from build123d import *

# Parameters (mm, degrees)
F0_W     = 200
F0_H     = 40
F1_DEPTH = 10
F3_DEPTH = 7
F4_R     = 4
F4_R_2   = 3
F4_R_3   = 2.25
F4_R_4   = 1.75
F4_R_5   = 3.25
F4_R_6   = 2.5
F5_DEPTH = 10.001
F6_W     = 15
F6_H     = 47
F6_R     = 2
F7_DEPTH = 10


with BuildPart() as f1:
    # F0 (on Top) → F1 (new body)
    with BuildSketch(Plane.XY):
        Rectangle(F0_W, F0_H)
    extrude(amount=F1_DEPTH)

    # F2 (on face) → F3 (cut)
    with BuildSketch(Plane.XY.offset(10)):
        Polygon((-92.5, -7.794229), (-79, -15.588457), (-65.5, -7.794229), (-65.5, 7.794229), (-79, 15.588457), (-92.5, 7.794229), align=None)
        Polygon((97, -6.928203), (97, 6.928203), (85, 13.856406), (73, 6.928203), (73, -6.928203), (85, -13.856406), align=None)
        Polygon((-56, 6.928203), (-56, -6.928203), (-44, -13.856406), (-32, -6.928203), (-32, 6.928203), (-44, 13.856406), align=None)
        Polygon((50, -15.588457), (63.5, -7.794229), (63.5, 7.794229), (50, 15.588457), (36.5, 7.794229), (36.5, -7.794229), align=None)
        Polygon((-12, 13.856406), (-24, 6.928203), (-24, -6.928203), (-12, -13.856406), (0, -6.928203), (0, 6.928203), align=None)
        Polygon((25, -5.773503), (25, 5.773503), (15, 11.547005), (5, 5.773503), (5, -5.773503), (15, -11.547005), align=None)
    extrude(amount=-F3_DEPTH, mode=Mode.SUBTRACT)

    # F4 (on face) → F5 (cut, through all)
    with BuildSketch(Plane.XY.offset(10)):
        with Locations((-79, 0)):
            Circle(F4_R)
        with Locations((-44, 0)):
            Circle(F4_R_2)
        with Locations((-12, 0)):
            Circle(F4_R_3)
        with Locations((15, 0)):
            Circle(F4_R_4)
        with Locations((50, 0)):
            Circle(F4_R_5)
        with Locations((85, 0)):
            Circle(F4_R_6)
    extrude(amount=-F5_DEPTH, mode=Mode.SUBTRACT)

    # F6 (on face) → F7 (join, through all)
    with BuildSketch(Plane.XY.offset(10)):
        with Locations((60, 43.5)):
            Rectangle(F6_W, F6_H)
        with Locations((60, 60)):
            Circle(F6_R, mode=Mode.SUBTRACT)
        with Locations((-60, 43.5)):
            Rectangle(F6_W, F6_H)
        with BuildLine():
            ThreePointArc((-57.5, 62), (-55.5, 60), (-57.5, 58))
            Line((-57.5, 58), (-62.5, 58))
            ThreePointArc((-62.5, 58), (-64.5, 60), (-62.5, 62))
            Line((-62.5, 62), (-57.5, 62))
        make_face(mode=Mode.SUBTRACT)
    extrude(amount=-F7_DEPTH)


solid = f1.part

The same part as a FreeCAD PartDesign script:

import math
import FreeCAD as App
import Part
import Sketcher
from FreeCAD import Vector
Q = App.Units.Quantity


def add_polygon(sketch, points):
    """Adds a closed chain of lines whose ends are joined by coincident constraints."""
    first, n = sketch.GeometryCount, len(points)
    for a, b in zip(points, points[1:] + points[:1]):
        sketch.addGeometry(Part.LineSegment(App.Vector(*a, 0), App.Vector(*b, 0)), False)
    for i in range(n):
        sketch.addConstraint(Sketcher.Constraint("Coincident", first + i, 2, first + (i + 1) % n, 1))

doc = App.newDocument("Part")
body = doc.addObject("PartDesign::Body", "Body")

sketch1 = doc.addObject("Sketcher::SketchObject", "Sketch")
body.addObject(sketch1)
sketch1.AttachmentSupport = (doc.XY_Plane, [""])
sketch1.MapMode = "FlatFace"
add_polygon(sketch1, [(-100, 20), (-100, -20), (100, -20), (100, 20)])
sketch1.addConstraint(Sketcher.Constraint("Vertical", 0))
sketch1.addConstraint(Sketcher.Constraint("Horizontal", 1))
sketch1.addConstraint(Sketcher.Constraint("Vertical", 2))
sketch1.addConstraint(Sketcher.Constraint("Horizontal", 3))
sketch1.addConstraint(Sketcher.Constraint("Symmetric", 0, 2, 2, 2, -1, 1))
sketch1.addConstraint(Sketcher.Constraint("DistanceX", 1, 1, 1, 2, 200.0))
sketch1.addConstraint(Sketcher.Constraint("DistanceY", 0, 2, 0, 1, 40.0))
pad1 = doc.addObject("PartDesign::Pad", "Pad")
body.addObject(pad1)
pad1.Profile = sketch1
pad1.Length = 10

sketch2 = doc.addObject("Sketcher::SketchObject", "Sketch001")
body.addObject(sketch2)
sketch2.AttachmentSupport = (doc.XY_Plane, [""])
sketch2.MapMode = "FlatFace"
sketch2.AttachmentOffset = App.Placement(Vector(0, 0, 10), App.Rotation())
add_polygon(sketch2, [(-92.5, -7.794229), (-79, -15.588457), (-65.5, -7.794229), (-65.5, 7.794229), (-79, 15.588457), (-92.5, 7.794229)])
add_polygon(sketch2, [(97, -6.928203), (97, 6.928203), (85, 13.856406), (73, 6.928203), (73, -6.928203), (85, -13.856406)])
add_polygon(sketch2, [(-56, 6.928203), (-56, -6.928203), (-44, -13.856406), (-32, -6.928203), (-32, 6.928203), (-44, 13.856406)])
add_polygon(sketch2, [(50, -15.588457), (63.5, -7.794229), (63.5, 7.794229), (50, 15.588457), (36.5, 7.794229), (36.5, -7.794229)])
add_polygon(sketch2, [(-12, 13.856406), (-24, 6.928203), (-24, -6.928203), (-12, -13.856406), (0, -6.928203), (0, 6.928203)])
add_polygon(sketch2, [(25, -5.773503), (25, 5.773503), (15, 11.547005), (5, 5.773503), (5, -5.773503), (15, -11.547005)])
sketch2.addConstraint(Sketcher.Constraint("Vertical", 2))
sketch2.addConstraint(Sketcher.Constraint("Vertical", 5))
sketch2.addConstraint(Sketcher.Constraint("Vertical", 6))
sketch2.addConstraint(Sketcher.Constraint("Vertical", 9))
sketch2.addConstraint(Sketcher.Constraint("Vertical", 12))
sketch2.addConstraint(Sketcher.Constraint("Vertical", 15))
sketch2.addConstraint(Sketcher.Constraint("Vertical", 19))
sketch2.addConstraint(Sketcher.Constraint("Vertical", 22))
sketch2.addConstraint(Sketcher.Constraint("Vertical", 25))
sketch2.addConstraint(Sketcher.Constraint("Vertical", 28))
sketch2.addConstraint(Sketcher.Constraint("Vertical", 30))
sketch2.addConstraint(Sketcher.Constraint("Vertical", 33))
sketch2.addConstraint(Sketcher.Constraint("Symmetric", 27, 2, 28, 2, -1, 1))
sketch2.addConstraint(Sketcher.Constraint("Symmetric", 0, 2, 3, 2, -1))
sketch2.addConstraint(Sketcher.Constraint("Symmetric", 7, 2, 10, 2, -1))
sketch2.addConstraint(Sketcher.Constraint("Symmetric", 13, 2, 16, 2, -1))
sketch2.addConstraint(Sketcher.Constraint("Symmetric", 20, 2, 23, 2, -1))
sketch2.addConstraint(Sketcher.Constraint("Symmetric", 26, 2, 29, 2, -1))
sketch2.addConstraint(Sketcher.Constraint("Symmetric", 31, 2, 34, 2, -1))
sketch2.addConstraint(Sketcher.Constraint("Parallel", 0, 3))
sketch2.addConstraint(Sketcher.Constraint("Parallel", 1, 4))
sketch2.addConstraint(Sketcher.Constraint("Parallel", 3, 7))
sketch2.addConstraint(Sketcher.Constraint("Parallel", 4, 8))
sketch2.addConstraint(Sketcher.Constraint("Parallel", 7, 10))
sketch2.addConstraint(Sketcher.Constraint("Parallel", 8, 11))
sketch2.addConstraint(Sketcher.Constraint("Parallel", 10, 13))
sketch2.addConstraint(Sketcher.Constraint("Parallel", 11, 14))
sketch2.addConstraint(Sketcher.Constraint("Parallel", 13, 16))
sketch2.addConstraint(Sketcher.Constraint("Parallel", 14, 17))
sketch2.addConstraint(Sketcher.Constraint("Parallel", 17, 18))
sketch2.addConstraint(Sketcher.Constraint("Parallel", 16, 20))
sketch2.addConstraint(Sketcher.Constraint("Parallel", 18, 21))
sketch2.addConstraint(Sketcher.Constraint("Parallel", 20, 23))
sketch2.addConstraint(Sketcher.Constraint("Parallel", 21, 24))
sketch2.addConstraint(Sketcher.Constraint("Parallel", 23, 26))
sketch2.addConstraint(Sketcher.Constraint("Parallel", 24, 27))
sketch2.addConstraint(Sketcher.Constraint("Parallel", 26, 29))
sketch2.addConstraint(Sketcher.Constraint("Parallel", 29, 31))
sketch2.addConstraint(Sketcher.Constraint("Parallel", 27, 32))
sketch2.addConstraint(Sketcher.Constraint("Parallel", 31, 34))
sketch2.addConstraint(Sketcher.Constraint("Parallel", 32, 35))
sketch2.addConstraint(Sketcher.Constraint("Horizontal", 2, 2, 4, 2))
sketch2.addConstraint(Sketcher.Constraint("Horizontal", 6, 2, 8, 2))
sketch2.addConstraint(Sketcher.Constraint("Horizontal", 11, 2, 12, 2))
sketch2.addConstraint(Sketcher.Constraint("Horizontal", 10, 2, 13, 2))
sketch2.addConstraint(Sketcher.Constraint("Horizontal", 12, 2, 14, 2))
sketch2.addConstraint(Sketcher.Constraint("Horizontal", 5, 2, 18, 2))
sketch2.addConstraint(Sketcher.Constraint("Horizontal", 3, 2, 20, 2))
sketch2.addConstraint(Sketcher.Constraint("Horizontal", 19, 2, 21, 2))
sketch2.addConstraint(Sketcher.Constraint("Horizontal", 17, 2, 24, 2))
sketch2.addConstraint(Sketcher.Constraint("Horizontal", 13, 2, 26, 2))
sketch2.addConstraint(Sketcher.Constraint("Horizontal", 25, 2, 27, 2))
sketch2.addConstraint(Sketcher.Constraint("Horizontal", 30, 2, 32, 2))
sketch2.addConstraint(Sketcher.Constraint("Angle", 0, Q("-29.999998 deg")))
sketch2.addConstraint(Sketcher.Constraint("DistanceX", 0, 2, -1, 1, 79.0))
sketch2.addConstraint(Sketcher.Constraint("DistanceX", -1, 1, 6, 2, 97.0))
sketch2.addConstraint(Sketcher.Constraint("DistanceX", -1, 1, 7, 2, 85.0))
sketch2.addConstraint(Sketcher.Constraint("DistanceX", 12, 2, -1, 1, 56.0))
sketch2.addConstraint(Sketcher.Constraint("DistanceX", -1, 1, 20, 2, 50.0))
sketch2.addConstraint(Sketcher.Constraint("DistanceX", -1, 1, 30, 2, 25.0))
sketch2.addConstraint(Sketcher.Constraint("DistanceX", -1, 1, 31, 2, 15.0))
sketch2.addConstraint(Sketcher.Constraint("DistanceX", 4, 2, 2, 2, 27.0))
sketch2.addConstraint(Sketcher.Constraint("DistanceY", 30, 2, 28, 2, 1.1547))
sketch2.addConstraint(Sketcher.Constraint("DistanceY", 2, 1, 2, 2, 15.588458))
sketch2.addConstraint(Sketcher.Constraint("DistanceY", 6, 1, 6, 2, 13.856406))
pocket1 = doc.addObject("PartDesign::Pocket", "Pocket")
body.addObject(pocket1)
pocket1.Profile = sketch2
pocket1.Length = 7

sketch3 = doc.addObject("Sketcher::SketchObject", "Sketch002")
body.addObject(sketch3)
sketch3.AttachmentSupport = (doc.XY_Plane, [""])
sketch3.MapMode = "FlatFace"
sketch3.AttachmentOffset = App.Placement(Vector(0, 0, 10), App.Rotation())
sketch3.addGeometry(Part.Circle(Vector(-79, 0, 0), Vector(0, 0, 1), 4), False)
sketch3.addGeometry(Part.Circle(Vector(-44, 0, 0), Vector(0, 0, 1), 3), False)
sketch3.addGeometry(Part.Circle(Vector(-12, 0, 0), Vector(0, 0, 1), 2.25), False)
sketch3.addGeometry(Part.Circle(Vector(15, 0, 0), Vector(0, 0, 1), 1.75), False)
sketch3.addGeometry(Part.Circle(Vector(50, 0, 0), Vector(0, 0, 1), 3.25), False)
sketch3.addGeometry(Part.Circle(Vector(85, 0, 0), Vector(0, 0, 1), 2.5), False)
sketch3.addConstraint(Sketcher.Constraint("PointOnObject", 0, 3, -1))
sketch3.addConstraint(Sketcher.Constraint("PointOnObject", 1, 3, -1))
sketch3.addConstraint(Sketcher.Constraint("PointOnObject", 2, 3, -1))
sketch3.addConstraint(Sketcher.Constraint("PointOnObject", 3, 3, -1))
sketch3.addConstraint(Sketcher.Constraint("PointOnObject", 4, 3, -1))
sketch3.addConstraint(Sketcher.Constraint("PointOnObject", 5, 3, -1))
sketch3.addConstraint(Sketcher.Constraint("Diameter", 0, 8.0))
sketch3.addConstraint(Sketcher.Constraint("Diameter", 1, 6.0))
sketch3.addConstraint(Sketcher.Constraint("Diameter", 5, 5.0))
sketch3.addConstraint(Sketcher.Constraint("Diameter", 2, 4.5))
sketch3.addConstraint(Sketcher.Constraint("Diameter", 3, 3.5))
sketch3.addConstraint(Sketcher.Constraint("Diameter", 4, 6.5))
sketch3.addConstraint(Sketcher.Constraint("DistanceX", 0, 3, -1, 1, 79.0))
sketch3.addConstraint(Sketcher.Constraint("DistanceX", 1, 3, -1, 1, 44.0))
sketch3.addConstraint(Sketcher.Constraint("DistanceX", 2, 3, -1, 1, 12.0))
sketch3.addConstraint(Sketcher.Constraint("DistanceX", -1, 1, 3, 3, 15.0))
sketch3.addConstraint(Sketcher.Constraint("DistanceX", -1, 1, 4, 3, 50.0))
sketch3.addConstraint(Sketcher.Constraint("DistanceX", -1, 1, 5, 3, 85.0))
pocket2 = doc.addObject("PartDesign::Pocket", "Pocket001")
body.addObject(pocket2)
pocket2.Profile = sketch3
pocket2.Type = "ThroughAll"

sketch4 = doc.addObject("Sketcher::SketchObject", "Sketch003")
body.addObject(sketch4)
sketch4.AttachmentSupport = (doc.XY_Plane, [""])
sketch4.MapMode = "FlatFace"
sketch4.AttachmentOffset = App.Placement(Vector(0, 0, 10), App.Rotation())
add_polygon(sketch4, [(52.5, 67), (52.5, 20), (67.5, 20), (67.5, 67)])
sketch4.addGeometry(Part.Circle(Vector(60, 60, 0), Vector(0, 0, 1), 2), False)
add_polygon(sketch4, [(-67.5, 67), (-67.5, 20), (-52.5, 20), (-52.5, 67)])
sketch4.addGeometry(Part.LineSegment(Vector(-62.5, 62, 0), Vector(-57.5, 62, 0)), False)
sketch4.addGeometry(Part.ArcOfCircle(Part.Circle(Vector(-57.5, 60, 0), Vector(0, 0, 1), 2), math.radians(-90), math.radians(90)), False)
sketch4.addGeometry(Part.LineSegment(Vector(-57.5, 58, 0), Vector(-62.5, 58, 0)), False)
sketch4.addGeometry(Part.ArcOfCircle(Part.Circle(Vector(-62.5, 60, 0), Vector(0, 0, 1), 2), math.radians(90), math.radians(270)), False)
sketch4.addConstraint(Sketcher.Constraint("Tangent", 9, 2, 10, 2))
sketch4.addConstraint(Sketcher.Constraint("Tangent", 10, 1, 11, 1))
sketch4.addConstraint(Sketcher.Constraint("Tangent", 11, 2, 12, 2))
sketch4.addConstraint(Sketcher.Constraint("Tangent", 12, 1, 9, 1))
sketch4.addConstraint(Sketcher.Constraint("Vertical", 0))
sketch4.addConstraint(Sketcher.Constraint("Horizontal", 1))
sketch4.addConstraint(Sketcher.Constraint("Vertical", 2))
sketch4.addConstraint(Sketcher.Constraint("Horizontal", 3))
sketch4.addConstraint(Sketcher.Constraint("Vertical", 5))
sketch4.addConstraint(Sketcher.Constraint("Horizontal", 6))
sketch4.addConstraint(Sketcher.Constraint("Vertical", 7))
sketch4.addConstraint(Sketcher.Constraint("Horizontal", 8))
sketch4.addConstraint(Sketcher.Constraint("Horizontal", 9))
sketch4.addConstraint(Sketcher.Constraint("Horizontal", 11))
sketch4.addConstraint(Sketcher.Constraint("Equal", 4, 10))
sketch4.addConstraint(Sketcher.Constraint("Symmetric", 1, 2, 5, 2, -2))
sketch4.addConstraint(Sketcher.Constraint("Symmetric", 3, 2, 7, 2, -2))
sketch4.addConstraint(Sketcher.Constraint("Horizontal", 4, 3, 10, 3))
sketch4.addConstraint(Sketcher.Constraint("Diameter", 4, 4.0))
sketch4.addConstraint(Sketcher.Constraint("DistanceX", 1, 1, 1, 2, 15.0))
sketch4.addConstraint(Sketcher.Constraint("DistanceX", 9, 1, 9, 2, 5.0))
sketch4.addConstraint(Sketcher.Constraint("DistanceY", 0, 2, 0, 1, 47.0))
sketch4.addConstraint(Sketcher.Constraint("DistanceX", -1, 1, 4, 3, 60.0))
sketch4.addConstraint(Sketcher.Constraint("DistanceY", -1, 1, 4, 3, 60.0))
sketch4.addConstraint(Sketcher.Constraint("DistanceY", -1, 1, 0, 2, 20.0))
sketch4.addConstraint(Sketcher.Constraint("DistanceX", 10, 3, 0, 2, 110.0))
sketch4.addConstraint(Sketcher.Constraint("DistanceX", 5, 2, 12, 3, 5.0))
pad2 = doc.addObject("PartDesign::Pad", "Pad001")
body.addObject(pad2)
pad2.Profile = sketch4
pad2.Length = 10
pad2.Reversed = True

doc.recompute()
